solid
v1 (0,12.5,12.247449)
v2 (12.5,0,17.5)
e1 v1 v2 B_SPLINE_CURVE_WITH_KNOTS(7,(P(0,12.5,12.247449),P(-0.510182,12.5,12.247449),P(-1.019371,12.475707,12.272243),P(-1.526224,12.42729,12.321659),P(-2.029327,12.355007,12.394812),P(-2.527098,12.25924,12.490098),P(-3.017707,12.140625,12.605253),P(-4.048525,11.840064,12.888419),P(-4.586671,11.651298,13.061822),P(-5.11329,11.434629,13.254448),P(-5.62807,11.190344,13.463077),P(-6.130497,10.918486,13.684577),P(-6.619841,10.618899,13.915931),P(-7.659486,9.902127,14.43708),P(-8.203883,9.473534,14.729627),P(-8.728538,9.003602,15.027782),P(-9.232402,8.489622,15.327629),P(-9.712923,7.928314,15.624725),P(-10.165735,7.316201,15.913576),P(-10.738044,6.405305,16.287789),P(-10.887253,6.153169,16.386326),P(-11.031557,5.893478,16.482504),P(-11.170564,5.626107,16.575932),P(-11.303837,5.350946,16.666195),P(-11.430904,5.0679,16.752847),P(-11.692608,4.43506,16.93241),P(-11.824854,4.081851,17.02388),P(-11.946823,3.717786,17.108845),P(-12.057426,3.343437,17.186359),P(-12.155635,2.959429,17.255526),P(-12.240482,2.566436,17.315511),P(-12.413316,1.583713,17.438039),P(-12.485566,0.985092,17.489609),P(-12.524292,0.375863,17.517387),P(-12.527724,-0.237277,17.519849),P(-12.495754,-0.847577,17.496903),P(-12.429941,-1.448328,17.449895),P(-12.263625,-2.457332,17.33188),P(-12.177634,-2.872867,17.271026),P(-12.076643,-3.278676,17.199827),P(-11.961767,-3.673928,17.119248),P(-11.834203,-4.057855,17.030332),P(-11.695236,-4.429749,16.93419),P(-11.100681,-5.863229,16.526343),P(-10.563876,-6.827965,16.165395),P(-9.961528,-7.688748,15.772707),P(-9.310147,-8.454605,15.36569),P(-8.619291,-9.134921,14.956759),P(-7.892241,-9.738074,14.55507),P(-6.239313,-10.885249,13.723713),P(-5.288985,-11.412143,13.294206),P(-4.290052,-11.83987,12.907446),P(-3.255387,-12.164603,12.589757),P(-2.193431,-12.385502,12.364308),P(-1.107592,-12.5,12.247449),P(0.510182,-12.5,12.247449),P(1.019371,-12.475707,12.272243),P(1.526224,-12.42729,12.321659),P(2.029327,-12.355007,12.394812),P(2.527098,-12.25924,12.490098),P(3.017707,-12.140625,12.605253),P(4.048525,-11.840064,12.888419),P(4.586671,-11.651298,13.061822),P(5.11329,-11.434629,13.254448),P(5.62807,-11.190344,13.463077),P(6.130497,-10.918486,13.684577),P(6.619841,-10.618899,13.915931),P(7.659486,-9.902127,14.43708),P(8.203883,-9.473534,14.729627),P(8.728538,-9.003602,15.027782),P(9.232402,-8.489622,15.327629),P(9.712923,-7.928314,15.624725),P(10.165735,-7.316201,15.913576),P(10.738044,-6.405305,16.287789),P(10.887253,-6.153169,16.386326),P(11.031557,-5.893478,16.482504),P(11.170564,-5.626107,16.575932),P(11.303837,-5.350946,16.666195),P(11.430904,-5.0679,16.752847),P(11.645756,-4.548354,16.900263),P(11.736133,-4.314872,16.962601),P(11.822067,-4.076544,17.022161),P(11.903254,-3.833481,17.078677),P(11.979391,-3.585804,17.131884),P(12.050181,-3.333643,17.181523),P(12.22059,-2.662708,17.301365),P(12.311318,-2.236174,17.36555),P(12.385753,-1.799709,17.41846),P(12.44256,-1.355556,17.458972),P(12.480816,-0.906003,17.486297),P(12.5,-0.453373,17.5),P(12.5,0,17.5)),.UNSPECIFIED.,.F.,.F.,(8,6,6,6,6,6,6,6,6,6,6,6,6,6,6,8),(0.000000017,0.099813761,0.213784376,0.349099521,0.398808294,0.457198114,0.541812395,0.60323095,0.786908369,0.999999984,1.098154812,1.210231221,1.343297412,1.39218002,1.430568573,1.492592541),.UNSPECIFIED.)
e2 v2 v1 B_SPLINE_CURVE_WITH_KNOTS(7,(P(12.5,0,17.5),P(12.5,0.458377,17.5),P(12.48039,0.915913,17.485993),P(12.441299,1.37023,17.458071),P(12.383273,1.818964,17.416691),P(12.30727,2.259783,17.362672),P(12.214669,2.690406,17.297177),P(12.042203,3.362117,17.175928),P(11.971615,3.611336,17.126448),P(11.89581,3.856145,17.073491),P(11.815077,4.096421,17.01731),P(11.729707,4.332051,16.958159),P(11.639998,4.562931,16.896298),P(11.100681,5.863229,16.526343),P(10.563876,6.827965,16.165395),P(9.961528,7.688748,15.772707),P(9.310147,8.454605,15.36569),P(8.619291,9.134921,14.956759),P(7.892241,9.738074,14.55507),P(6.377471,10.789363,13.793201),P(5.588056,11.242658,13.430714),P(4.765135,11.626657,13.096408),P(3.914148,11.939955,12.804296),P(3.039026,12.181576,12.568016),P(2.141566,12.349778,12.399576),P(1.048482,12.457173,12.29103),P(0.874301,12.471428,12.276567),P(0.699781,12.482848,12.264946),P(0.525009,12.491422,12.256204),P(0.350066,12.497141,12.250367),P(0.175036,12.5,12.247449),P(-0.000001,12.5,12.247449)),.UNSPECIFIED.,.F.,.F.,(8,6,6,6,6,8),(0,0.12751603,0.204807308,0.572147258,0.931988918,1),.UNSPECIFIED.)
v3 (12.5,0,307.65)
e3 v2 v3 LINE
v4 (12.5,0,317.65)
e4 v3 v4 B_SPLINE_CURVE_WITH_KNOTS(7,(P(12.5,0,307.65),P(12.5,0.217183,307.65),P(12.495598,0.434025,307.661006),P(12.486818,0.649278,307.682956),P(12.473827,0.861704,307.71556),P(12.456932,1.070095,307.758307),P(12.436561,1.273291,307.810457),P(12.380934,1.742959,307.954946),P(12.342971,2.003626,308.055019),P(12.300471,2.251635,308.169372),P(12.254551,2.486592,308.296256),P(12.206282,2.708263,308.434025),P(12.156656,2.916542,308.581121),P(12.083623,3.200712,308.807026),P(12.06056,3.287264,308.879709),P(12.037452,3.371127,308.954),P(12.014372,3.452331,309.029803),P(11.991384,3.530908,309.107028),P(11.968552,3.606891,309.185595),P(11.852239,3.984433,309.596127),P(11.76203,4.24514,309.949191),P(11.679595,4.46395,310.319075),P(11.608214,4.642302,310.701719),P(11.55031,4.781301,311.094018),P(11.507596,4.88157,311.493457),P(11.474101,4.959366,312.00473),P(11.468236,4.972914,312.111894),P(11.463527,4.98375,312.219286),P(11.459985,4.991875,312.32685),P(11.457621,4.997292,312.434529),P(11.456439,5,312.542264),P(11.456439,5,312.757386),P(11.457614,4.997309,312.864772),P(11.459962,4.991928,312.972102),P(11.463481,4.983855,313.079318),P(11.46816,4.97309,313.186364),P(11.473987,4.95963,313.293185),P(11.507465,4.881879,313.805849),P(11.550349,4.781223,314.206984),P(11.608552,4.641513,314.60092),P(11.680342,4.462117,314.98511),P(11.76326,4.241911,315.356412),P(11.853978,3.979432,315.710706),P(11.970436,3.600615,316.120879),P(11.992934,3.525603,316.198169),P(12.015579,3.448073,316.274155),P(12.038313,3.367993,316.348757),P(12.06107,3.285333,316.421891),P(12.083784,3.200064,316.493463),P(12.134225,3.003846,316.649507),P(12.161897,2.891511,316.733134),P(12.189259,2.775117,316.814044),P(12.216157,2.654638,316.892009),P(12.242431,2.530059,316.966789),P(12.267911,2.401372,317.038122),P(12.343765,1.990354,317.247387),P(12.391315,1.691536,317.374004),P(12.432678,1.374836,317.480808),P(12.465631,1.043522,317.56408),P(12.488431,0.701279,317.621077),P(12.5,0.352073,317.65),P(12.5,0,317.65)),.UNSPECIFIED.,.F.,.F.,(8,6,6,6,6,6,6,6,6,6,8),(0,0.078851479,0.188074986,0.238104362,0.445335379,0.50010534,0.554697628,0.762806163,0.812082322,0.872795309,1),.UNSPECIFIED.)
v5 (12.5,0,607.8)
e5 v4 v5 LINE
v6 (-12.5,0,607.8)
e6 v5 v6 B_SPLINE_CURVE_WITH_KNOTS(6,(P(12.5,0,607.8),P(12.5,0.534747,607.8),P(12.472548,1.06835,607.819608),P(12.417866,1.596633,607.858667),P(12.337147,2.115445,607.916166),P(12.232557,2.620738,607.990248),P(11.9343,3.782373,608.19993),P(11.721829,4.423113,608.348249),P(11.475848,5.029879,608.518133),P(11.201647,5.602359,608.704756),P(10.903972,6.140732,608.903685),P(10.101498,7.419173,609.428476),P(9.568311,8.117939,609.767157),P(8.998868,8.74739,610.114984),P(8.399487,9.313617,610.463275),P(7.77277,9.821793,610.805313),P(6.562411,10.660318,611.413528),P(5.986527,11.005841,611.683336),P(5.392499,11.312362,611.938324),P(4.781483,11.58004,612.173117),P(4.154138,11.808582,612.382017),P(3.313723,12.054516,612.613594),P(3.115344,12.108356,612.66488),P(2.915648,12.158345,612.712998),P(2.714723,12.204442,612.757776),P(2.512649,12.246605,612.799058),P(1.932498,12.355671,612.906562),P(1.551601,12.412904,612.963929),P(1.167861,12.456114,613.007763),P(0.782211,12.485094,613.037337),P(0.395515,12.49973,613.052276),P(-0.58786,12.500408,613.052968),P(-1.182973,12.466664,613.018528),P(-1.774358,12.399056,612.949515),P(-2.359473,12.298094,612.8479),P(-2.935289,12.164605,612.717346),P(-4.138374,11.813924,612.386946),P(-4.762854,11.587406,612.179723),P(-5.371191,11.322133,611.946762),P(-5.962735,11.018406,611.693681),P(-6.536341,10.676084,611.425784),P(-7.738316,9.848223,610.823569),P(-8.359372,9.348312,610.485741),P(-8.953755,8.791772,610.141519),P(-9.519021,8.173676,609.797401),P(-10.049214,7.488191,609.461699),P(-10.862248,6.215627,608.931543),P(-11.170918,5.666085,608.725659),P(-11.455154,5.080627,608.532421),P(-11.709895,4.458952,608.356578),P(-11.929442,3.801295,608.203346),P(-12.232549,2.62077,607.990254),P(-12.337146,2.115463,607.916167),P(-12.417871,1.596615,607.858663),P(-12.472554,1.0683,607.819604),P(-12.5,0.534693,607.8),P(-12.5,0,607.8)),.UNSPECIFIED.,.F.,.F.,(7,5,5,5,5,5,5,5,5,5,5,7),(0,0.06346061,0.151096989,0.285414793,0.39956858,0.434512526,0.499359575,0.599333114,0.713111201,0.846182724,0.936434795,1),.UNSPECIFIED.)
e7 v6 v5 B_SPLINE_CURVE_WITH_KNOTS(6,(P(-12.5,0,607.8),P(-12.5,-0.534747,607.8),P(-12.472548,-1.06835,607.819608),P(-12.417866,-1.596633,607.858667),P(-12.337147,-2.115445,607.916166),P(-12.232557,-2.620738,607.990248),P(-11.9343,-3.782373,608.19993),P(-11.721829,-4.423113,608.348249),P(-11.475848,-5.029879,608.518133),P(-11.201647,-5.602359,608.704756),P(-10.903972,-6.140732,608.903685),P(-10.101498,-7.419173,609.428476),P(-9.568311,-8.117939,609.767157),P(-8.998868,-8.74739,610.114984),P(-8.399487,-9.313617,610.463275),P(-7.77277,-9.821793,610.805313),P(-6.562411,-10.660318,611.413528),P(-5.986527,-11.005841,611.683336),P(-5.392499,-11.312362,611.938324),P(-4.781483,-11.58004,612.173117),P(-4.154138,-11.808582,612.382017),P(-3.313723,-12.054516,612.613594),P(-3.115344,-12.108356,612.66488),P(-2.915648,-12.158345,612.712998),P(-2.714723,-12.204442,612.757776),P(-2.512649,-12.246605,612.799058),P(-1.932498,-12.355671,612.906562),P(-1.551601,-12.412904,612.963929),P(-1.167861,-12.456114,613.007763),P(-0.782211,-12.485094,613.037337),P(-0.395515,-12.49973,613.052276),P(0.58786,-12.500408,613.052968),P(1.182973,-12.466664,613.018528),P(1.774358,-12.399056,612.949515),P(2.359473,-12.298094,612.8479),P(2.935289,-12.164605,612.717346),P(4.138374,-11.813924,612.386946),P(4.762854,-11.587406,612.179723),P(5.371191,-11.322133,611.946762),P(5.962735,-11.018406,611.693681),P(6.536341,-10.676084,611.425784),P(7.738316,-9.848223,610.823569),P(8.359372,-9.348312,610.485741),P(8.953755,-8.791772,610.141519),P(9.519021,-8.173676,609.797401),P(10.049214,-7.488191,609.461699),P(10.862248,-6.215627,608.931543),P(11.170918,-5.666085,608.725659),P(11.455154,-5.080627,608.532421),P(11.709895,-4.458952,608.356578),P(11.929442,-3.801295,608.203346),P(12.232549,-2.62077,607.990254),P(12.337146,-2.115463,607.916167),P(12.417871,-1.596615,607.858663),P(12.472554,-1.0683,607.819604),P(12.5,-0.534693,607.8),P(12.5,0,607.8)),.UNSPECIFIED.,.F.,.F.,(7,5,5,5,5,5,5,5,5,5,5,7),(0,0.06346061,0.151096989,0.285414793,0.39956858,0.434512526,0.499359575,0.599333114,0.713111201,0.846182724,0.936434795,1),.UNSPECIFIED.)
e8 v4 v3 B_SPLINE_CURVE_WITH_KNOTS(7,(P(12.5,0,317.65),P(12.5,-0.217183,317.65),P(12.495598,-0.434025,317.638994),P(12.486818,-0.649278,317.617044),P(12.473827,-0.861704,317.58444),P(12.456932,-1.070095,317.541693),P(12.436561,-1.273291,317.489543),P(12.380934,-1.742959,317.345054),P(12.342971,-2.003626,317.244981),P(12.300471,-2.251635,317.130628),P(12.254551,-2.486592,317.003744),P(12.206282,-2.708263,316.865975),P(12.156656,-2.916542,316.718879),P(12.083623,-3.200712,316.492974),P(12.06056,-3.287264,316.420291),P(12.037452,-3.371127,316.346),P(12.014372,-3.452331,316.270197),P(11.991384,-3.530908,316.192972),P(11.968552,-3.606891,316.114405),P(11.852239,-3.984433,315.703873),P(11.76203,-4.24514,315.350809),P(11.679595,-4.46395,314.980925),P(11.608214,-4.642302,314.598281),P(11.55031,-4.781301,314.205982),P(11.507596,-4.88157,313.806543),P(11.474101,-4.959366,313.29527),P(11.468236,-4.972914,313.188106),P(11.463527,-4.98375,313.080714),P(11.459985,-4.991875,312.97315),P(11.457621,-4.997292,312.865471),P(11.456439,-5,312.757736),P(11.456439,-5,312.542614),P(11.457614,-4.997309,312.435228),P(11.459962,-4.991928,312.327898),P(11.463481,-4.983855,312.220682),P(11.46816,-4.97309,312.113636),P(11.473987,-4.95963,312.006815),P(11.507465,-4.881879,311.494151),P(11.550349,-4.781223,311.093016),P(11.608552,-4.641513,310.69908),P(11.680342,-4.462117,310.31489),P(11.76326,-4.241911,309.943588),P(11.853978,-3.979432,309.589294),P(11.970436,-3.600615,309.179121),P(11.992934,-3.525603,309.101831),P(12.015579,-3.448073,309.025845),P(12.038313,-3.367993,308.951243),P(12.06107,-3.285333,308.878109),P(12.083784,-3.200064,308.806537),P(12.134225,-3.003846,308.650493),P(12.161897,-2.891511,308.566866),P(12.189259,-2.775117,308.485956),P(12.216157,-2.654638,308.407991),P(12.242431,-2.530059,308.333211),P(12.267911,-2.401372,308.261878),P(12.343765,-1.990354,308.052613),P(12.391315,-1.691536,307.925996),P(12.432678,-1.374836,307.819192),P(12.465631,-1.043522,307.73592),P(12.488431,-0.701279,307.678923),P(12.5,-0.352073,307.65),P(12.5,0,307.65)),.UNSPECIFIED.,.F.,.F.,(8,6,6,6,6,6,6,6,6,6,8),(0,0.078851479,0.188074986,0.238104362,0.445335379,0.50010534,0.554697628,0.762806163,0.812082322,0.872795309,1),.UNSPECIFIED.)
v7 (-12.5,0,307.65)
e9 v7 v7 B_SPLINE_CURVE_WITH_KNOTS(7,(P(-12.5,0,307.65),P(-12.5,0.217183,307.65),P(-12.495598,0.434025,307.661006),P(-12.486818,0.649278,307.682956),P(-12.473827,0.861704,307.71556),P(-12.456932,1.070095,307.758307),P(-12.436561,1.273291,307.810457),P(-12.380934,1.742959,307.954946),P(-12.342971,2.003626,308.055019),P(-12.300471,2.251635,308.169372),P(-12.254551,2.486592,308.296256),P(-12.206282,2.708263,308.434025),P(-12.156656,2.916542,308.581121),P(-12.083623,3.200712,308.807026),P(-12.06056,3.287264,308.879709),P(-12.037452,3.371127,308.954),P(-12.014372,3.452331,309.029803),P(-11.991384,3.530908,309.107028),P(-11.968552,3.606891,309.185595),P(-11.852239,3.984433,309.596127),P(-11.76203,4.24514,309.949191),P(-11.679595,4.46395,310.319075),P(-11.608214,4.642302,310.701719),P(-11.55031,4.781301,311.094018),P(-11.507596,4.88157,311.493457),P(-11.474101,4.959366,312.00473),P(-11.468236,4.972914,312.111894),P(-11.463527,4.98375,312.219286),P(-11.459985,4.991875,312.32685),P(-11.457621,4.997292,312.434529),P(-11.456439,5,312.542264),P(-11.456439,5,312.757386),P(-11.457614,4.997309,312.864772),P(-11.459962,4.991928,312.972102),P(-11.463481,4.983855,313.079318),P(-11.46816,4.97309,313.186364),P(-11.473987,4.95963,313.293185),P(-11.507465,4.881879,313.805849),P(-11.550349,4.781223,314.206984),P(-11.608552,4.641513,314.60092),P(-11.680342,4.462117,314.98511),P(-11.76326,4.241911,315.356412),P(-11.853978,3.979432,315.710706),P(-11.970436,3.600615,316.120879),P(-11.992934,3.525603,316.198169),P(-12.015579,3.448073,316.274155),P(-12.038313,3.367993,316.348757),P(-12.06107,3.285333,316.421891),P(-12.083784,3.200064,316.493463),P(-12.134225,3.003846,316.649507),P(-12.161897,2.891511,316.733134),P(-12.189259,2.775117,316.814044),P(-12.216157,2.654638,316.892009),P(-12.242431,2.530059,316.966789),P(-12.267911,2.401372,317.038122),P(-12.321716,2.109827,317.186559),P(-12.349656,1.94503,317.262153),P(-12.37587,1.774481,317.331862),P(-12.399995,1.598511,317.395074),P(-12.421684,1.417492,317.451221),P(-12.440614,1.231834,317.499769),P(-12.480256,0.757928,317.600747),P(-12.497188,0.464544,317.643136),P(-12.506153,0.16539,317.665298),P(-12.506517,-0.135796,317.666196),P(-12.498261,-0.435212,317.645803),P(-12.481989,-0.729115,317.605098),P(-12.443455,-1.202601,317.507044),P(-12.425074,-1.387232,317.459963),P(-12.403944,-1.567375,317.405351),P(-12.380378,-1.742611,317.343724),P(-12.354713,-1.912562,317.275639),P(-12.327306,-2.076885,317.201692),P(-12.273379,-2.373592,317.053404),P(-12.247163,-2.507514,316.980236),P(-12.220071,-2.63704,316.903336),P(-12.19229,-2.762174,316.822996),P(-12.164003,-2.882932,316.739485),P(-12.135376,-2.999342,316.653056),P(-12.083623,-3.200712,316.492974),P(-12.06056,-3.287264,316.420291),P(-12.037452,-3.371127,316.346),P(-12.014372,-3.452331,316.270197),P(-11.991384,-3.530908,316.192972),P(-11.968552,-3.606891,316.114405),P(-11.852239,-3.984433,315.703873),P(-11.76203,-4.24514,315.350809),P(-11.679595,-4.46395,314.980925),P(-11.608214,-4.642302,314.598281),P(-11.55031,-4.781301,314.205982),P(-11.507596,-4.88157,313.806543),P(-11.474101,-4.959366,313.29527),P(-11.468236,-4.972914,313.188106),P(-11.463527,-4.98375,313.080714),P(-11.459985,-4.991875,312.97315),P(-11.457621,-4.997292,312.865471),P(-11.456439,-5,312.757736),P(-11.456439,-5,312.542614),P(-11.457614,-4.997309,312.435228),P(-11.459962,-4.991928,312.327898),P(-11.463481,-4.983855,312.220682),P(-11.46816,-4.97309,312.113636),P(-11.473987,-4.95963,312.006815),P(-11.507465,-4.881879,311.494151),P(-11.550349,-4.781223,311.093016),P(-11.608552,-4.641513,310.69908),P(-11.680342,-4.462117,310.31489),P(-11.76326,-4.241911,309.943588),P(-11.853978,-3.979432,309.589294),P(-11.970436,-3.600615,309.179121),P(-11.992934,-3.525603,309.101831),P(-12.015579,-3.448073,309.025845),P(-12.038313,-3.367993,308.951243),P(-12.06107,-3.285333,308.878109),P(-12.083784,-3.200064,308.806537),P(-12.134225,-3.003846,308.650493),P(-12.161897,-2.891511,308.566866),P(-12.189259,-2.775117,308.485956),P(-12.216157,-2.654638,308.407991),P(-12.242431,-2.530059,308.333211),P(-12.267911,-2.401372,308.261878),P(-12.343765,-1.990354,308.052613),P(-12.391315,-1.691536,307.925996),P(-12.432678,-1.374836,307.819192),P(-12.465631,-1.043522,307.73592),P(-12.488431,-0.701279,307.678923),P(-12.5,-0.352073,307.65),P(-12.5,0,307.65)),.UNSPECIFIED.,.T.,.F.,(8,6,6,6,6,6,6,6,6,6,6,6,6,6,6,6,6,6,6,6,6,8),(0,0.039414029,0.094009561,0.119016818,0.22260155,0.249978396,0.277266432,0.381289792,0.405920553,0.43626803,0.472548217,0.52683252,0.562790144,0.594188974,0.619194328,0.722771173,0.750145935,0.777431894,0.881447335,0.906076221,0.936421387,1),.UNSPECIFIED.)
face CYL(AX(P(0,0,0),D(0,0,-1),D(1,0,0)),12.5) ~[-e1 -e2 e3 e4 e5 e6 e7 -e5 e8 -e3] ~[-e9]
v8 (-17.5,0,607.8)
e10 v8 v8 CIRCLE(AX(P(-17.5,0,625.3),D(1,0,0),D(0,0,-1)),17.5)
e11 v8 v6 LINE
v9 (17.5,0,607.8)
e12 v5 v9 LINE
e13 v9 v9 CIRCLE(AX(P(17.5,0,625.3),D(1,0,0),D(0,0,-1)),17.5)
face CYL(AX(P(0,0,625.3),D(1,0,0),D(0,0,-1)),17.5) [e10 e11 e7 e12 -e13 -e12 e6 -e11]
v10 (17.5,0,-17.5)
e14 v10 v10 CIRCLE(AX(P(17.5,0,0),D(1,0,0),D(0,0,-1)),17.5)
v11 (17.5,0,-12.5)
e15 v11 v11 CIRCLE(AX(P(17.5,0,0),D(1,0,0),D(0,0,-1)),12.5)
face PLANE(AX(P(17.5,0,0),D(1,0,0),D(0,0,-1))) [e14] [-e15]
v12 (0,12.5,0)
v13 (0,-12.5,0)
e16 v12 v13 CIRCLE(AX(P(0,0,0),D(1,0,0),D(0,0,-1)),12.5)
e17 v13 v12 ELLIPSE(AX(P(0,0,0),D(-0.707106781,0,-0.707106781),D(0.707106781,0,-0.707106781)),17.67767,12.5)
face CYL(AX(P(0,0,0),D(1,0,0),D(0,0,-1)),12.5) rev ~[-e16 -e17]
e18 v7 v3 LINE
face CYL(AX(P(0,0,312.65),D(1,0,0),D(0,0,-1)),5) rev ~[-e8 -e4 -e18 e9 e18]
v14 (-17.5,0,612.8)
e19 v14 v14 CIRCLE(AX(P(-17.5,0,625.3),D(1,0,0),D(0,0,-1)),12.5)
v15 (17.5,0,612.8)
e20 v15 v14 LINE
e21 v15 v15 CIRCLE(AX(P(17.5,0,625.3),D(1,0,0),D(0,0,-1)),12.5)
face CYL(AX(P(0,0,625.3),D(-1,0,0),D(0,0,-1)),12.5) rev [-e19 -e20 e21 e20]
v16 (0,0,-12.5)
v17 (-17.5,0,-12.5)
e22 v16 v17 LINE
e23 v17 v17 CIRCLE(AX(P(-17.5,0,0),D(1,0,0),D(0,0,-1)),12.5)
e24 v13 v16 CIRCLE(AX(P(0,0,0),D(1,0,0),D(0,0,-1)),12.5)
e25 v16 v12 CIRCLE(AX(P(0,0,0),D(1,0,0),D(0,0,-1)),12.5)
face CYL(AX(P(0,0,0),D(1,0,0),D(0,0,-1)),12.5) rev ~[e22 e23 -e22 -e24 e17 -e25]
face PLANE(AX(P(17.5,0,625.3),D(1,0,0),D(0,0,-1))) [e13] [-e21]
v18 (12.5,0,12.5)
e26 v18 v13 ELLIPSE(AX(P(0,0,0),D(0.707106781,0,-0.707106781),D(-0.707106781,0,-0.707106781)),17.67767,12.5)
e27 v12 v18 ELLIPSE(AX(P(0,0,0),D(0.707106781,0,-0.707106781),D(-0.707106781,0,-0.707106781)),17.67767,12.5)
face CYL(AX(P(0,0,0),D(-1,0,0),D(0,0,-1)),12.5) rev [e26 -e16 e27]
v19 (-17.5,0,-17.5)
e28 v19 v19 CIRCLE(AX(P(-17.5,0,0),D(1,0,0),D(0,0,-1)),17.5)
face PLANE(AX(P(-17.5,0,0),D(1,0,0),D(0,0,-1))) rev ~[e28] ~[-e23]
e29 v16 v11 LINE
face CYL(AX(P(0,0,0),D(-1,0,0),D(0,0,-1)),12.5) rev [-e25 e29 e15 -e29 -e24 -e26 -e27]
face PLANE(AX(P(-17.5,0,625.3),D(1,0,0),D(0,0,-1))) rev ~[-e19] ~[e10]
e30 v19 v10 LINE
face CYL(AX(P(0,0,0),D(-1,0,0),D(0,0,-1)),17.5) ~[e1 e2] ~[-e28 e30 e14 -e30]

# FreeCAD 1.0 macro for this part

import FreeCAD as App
import Part
import Sketcher

doc = App.newDocument("Part")
params = doc.addObject("Spreadsheet::Sheet", "Params")
for row, (alias, value) in enumerate([
    ("sketch1_diameter", "25 mm"),
    ("pad1_length", "625.3 mm"),
    ("sketch2_diameter", "10 mm"),
    ("pocket1_length", "625.3 mm"),
    ("sketch3_diameter", "35 mm"),
    ("sketch3_diameter2", "25 mm"),
    ("pad2_length", "35 mm"),
    ("sketch4_diameter", "25 mm"),
    ("pocket2_length", "35 mm"),
], start=1):
    params.set(f"A{row}", alias)
    params.set(f"B{row}", "=" + value)
    params.setAlias(f"B{row}", alias)

body = doc.addObject("PartDesign::Body", "Body")

# Sketch on XY plane
sketch1 = body.newObject("Sketcher::SketchObject", "Sketch")
sketch1.AttachmentSupport = (doc.getObject("XY_Plane"), [""])
sketch1.MapMode = "FlatFace"
sketch1.addGeometry(Part.Circle(App.Vector(0, 0, 0), App.Vector(0, 0, 1), 12), False)
sketch1.addConstraint(Sketcher.Constraint("Coincident", 0, 3, -1, 1))
sketch1.addConstraint(Sketcher.Constraint("Diameter", 0, 25.0))
sketch1.setExpression("Constraints[1]", "Params.sketch1_diameter")
pad1 = body.newObject("PartDesign::Pad", "Pad")
pad1.Profile = sketch1
pad1.setExpression("Length", "Params.pad1_length")

# Sketch on YZ plane
sketch2 = body.newObject("Sketcher::SketchObject", "Sketch001")
sketch2.AttachmentSupport = (doc.getObject("YZ_Plane"), [""])
sketch2.MapMode = "FlatFace"
sketch2.addGeometry(Part.Circle(App.Vector(0, 313, 0), App.Vector(0, 0, 1), 5), False)
sketch2.addConstraint(Sketcher.Constraint("PointOnObject", 0, 3, -2))
sketch2.addConstraint(Sketcher.Constraint("Diameter", 0, 10.0))
sketch2.addConstraint(Sketcher.Constraint("DistanceY", -1, 1, 0, 3, 312.65))
sketch2.setExpression("Constraints[1]", "Params.sketch2_diameter")
pocket1 = body.newObject("PartDesign::Pocket", "Pocket")
pocket1.Profile = sketch2
pocket1.setExpression("Length", "Params.pocket1_length")
pocket1.Midplane = True

# Sketch on YZ plane
sketch3 = body.newObject("Sketcher::SketchObject", "Sketch002")
sketch3.AttachmentSupport = (doc.getObject("YZ_Plane"), [""])
sketch3.MapMode = "FlatFace"
sketch3.addGeometry(Part.Circle(App.Vector(0, 0, 0), App.Vector(0, 0, 1), 18), False)
sketch3.addGeometry(Part.Circle(App.Vector(0, 0, 0), App.Vector(0, 0, 1), 12), False)
sketch3.addGeometry(Part.Circle(App.Vector(0, 625, 0), App.Vector(0, 0, 1), 18), False)
sketch3.addGeometry(Part.Circle(App.Vector(0, 625, 0), App.Vector(0, 0, 1), 12), False)
sketch3.addConstraint(Sketcher.Constraint("Coincident", 0, 3, -1, 1))
sketch3.addConstraint(Sketcher.Constraint("Coincident", 1, 3, -1, 1))
sketch3.addConstraint(Sketcher.Constraint("Coincident", 3, 3, 2, 3))
sketch3.addConstraint(Sketcher.Constraint("Equal", 0, 2))
sketch3.addConstraint(Sketcher.Constraint("Equal", 1, 3))
sketch3.addConstraint(Sketcher.Constraint("PointOnObject", 2, 3, -2))
sketch3.addConstraint(Sketcher.Constraint("Diameter", 0, 35.0))
sketch3.addConstraint(Sketcher.Constraint("Diameter", 1, 25.0))
sketch3.addConstraint(Sketcher.Constraint("DistanceY", -1, 1, 2, 3, 625.3))
sketch3.setExpression("Constraints[6]", "Params.sketch3_diameter")
sketch3.setExpression("Constraints[7]", "Params.sketch3_diameter2")
pad2 = body.newObject("PartDesign::Pad", "Pad001")
pad2.Profile = sketch3
pad2.setExpression("Length", "Params.pad2_length")
pad2.Midplane = True

# Sketch on YZ plane
sketch4 = body.newObject("Sketcher::SketchObject", "Sketch003")
sketch4.AttachmentSupport = (doc.getObject("YZ_Plane"), [""])
sketch4.MapMode = "FlatFace"
sketch4.addGeometry(Part.Circle(App.Vector(0, 0, 0), App.Vector(0, 0, 1), 12), False)
sketch4.addGeometry(Part.Circle(App.Vector(0, 625, 0), App.Vector(0, 0, 1), 12), False)
sketch4.addConstraint(Sketcher.Constraint("Coincident", 0, 3, -1, 1))
sketch4.addConstraint(Sketcher.Constraint("Equal", 0, 1))
sketch4.addConstraint(Sketcher.Constraint("PointOnObject", 1, 3, -2))
sketch4.addConstraint(Sketcher.Constraint("Diameter", 0, 25.0))
sketch4.addConstraint(Sketcher.Constraint("DistanceY", -1, 1, 1, 3, 625.3))
sketch4.setExpression("Constraints[3]", "Params.sketch4_diameter")
pocket2 = body.newObject("PartDesign::Pocket", "Pocket001")
pocket2.Profile = sketch4
pocket2.setExpression("Length", "Params.pocket2_length")
pocket2.Midplane = True

doc.recompute()
